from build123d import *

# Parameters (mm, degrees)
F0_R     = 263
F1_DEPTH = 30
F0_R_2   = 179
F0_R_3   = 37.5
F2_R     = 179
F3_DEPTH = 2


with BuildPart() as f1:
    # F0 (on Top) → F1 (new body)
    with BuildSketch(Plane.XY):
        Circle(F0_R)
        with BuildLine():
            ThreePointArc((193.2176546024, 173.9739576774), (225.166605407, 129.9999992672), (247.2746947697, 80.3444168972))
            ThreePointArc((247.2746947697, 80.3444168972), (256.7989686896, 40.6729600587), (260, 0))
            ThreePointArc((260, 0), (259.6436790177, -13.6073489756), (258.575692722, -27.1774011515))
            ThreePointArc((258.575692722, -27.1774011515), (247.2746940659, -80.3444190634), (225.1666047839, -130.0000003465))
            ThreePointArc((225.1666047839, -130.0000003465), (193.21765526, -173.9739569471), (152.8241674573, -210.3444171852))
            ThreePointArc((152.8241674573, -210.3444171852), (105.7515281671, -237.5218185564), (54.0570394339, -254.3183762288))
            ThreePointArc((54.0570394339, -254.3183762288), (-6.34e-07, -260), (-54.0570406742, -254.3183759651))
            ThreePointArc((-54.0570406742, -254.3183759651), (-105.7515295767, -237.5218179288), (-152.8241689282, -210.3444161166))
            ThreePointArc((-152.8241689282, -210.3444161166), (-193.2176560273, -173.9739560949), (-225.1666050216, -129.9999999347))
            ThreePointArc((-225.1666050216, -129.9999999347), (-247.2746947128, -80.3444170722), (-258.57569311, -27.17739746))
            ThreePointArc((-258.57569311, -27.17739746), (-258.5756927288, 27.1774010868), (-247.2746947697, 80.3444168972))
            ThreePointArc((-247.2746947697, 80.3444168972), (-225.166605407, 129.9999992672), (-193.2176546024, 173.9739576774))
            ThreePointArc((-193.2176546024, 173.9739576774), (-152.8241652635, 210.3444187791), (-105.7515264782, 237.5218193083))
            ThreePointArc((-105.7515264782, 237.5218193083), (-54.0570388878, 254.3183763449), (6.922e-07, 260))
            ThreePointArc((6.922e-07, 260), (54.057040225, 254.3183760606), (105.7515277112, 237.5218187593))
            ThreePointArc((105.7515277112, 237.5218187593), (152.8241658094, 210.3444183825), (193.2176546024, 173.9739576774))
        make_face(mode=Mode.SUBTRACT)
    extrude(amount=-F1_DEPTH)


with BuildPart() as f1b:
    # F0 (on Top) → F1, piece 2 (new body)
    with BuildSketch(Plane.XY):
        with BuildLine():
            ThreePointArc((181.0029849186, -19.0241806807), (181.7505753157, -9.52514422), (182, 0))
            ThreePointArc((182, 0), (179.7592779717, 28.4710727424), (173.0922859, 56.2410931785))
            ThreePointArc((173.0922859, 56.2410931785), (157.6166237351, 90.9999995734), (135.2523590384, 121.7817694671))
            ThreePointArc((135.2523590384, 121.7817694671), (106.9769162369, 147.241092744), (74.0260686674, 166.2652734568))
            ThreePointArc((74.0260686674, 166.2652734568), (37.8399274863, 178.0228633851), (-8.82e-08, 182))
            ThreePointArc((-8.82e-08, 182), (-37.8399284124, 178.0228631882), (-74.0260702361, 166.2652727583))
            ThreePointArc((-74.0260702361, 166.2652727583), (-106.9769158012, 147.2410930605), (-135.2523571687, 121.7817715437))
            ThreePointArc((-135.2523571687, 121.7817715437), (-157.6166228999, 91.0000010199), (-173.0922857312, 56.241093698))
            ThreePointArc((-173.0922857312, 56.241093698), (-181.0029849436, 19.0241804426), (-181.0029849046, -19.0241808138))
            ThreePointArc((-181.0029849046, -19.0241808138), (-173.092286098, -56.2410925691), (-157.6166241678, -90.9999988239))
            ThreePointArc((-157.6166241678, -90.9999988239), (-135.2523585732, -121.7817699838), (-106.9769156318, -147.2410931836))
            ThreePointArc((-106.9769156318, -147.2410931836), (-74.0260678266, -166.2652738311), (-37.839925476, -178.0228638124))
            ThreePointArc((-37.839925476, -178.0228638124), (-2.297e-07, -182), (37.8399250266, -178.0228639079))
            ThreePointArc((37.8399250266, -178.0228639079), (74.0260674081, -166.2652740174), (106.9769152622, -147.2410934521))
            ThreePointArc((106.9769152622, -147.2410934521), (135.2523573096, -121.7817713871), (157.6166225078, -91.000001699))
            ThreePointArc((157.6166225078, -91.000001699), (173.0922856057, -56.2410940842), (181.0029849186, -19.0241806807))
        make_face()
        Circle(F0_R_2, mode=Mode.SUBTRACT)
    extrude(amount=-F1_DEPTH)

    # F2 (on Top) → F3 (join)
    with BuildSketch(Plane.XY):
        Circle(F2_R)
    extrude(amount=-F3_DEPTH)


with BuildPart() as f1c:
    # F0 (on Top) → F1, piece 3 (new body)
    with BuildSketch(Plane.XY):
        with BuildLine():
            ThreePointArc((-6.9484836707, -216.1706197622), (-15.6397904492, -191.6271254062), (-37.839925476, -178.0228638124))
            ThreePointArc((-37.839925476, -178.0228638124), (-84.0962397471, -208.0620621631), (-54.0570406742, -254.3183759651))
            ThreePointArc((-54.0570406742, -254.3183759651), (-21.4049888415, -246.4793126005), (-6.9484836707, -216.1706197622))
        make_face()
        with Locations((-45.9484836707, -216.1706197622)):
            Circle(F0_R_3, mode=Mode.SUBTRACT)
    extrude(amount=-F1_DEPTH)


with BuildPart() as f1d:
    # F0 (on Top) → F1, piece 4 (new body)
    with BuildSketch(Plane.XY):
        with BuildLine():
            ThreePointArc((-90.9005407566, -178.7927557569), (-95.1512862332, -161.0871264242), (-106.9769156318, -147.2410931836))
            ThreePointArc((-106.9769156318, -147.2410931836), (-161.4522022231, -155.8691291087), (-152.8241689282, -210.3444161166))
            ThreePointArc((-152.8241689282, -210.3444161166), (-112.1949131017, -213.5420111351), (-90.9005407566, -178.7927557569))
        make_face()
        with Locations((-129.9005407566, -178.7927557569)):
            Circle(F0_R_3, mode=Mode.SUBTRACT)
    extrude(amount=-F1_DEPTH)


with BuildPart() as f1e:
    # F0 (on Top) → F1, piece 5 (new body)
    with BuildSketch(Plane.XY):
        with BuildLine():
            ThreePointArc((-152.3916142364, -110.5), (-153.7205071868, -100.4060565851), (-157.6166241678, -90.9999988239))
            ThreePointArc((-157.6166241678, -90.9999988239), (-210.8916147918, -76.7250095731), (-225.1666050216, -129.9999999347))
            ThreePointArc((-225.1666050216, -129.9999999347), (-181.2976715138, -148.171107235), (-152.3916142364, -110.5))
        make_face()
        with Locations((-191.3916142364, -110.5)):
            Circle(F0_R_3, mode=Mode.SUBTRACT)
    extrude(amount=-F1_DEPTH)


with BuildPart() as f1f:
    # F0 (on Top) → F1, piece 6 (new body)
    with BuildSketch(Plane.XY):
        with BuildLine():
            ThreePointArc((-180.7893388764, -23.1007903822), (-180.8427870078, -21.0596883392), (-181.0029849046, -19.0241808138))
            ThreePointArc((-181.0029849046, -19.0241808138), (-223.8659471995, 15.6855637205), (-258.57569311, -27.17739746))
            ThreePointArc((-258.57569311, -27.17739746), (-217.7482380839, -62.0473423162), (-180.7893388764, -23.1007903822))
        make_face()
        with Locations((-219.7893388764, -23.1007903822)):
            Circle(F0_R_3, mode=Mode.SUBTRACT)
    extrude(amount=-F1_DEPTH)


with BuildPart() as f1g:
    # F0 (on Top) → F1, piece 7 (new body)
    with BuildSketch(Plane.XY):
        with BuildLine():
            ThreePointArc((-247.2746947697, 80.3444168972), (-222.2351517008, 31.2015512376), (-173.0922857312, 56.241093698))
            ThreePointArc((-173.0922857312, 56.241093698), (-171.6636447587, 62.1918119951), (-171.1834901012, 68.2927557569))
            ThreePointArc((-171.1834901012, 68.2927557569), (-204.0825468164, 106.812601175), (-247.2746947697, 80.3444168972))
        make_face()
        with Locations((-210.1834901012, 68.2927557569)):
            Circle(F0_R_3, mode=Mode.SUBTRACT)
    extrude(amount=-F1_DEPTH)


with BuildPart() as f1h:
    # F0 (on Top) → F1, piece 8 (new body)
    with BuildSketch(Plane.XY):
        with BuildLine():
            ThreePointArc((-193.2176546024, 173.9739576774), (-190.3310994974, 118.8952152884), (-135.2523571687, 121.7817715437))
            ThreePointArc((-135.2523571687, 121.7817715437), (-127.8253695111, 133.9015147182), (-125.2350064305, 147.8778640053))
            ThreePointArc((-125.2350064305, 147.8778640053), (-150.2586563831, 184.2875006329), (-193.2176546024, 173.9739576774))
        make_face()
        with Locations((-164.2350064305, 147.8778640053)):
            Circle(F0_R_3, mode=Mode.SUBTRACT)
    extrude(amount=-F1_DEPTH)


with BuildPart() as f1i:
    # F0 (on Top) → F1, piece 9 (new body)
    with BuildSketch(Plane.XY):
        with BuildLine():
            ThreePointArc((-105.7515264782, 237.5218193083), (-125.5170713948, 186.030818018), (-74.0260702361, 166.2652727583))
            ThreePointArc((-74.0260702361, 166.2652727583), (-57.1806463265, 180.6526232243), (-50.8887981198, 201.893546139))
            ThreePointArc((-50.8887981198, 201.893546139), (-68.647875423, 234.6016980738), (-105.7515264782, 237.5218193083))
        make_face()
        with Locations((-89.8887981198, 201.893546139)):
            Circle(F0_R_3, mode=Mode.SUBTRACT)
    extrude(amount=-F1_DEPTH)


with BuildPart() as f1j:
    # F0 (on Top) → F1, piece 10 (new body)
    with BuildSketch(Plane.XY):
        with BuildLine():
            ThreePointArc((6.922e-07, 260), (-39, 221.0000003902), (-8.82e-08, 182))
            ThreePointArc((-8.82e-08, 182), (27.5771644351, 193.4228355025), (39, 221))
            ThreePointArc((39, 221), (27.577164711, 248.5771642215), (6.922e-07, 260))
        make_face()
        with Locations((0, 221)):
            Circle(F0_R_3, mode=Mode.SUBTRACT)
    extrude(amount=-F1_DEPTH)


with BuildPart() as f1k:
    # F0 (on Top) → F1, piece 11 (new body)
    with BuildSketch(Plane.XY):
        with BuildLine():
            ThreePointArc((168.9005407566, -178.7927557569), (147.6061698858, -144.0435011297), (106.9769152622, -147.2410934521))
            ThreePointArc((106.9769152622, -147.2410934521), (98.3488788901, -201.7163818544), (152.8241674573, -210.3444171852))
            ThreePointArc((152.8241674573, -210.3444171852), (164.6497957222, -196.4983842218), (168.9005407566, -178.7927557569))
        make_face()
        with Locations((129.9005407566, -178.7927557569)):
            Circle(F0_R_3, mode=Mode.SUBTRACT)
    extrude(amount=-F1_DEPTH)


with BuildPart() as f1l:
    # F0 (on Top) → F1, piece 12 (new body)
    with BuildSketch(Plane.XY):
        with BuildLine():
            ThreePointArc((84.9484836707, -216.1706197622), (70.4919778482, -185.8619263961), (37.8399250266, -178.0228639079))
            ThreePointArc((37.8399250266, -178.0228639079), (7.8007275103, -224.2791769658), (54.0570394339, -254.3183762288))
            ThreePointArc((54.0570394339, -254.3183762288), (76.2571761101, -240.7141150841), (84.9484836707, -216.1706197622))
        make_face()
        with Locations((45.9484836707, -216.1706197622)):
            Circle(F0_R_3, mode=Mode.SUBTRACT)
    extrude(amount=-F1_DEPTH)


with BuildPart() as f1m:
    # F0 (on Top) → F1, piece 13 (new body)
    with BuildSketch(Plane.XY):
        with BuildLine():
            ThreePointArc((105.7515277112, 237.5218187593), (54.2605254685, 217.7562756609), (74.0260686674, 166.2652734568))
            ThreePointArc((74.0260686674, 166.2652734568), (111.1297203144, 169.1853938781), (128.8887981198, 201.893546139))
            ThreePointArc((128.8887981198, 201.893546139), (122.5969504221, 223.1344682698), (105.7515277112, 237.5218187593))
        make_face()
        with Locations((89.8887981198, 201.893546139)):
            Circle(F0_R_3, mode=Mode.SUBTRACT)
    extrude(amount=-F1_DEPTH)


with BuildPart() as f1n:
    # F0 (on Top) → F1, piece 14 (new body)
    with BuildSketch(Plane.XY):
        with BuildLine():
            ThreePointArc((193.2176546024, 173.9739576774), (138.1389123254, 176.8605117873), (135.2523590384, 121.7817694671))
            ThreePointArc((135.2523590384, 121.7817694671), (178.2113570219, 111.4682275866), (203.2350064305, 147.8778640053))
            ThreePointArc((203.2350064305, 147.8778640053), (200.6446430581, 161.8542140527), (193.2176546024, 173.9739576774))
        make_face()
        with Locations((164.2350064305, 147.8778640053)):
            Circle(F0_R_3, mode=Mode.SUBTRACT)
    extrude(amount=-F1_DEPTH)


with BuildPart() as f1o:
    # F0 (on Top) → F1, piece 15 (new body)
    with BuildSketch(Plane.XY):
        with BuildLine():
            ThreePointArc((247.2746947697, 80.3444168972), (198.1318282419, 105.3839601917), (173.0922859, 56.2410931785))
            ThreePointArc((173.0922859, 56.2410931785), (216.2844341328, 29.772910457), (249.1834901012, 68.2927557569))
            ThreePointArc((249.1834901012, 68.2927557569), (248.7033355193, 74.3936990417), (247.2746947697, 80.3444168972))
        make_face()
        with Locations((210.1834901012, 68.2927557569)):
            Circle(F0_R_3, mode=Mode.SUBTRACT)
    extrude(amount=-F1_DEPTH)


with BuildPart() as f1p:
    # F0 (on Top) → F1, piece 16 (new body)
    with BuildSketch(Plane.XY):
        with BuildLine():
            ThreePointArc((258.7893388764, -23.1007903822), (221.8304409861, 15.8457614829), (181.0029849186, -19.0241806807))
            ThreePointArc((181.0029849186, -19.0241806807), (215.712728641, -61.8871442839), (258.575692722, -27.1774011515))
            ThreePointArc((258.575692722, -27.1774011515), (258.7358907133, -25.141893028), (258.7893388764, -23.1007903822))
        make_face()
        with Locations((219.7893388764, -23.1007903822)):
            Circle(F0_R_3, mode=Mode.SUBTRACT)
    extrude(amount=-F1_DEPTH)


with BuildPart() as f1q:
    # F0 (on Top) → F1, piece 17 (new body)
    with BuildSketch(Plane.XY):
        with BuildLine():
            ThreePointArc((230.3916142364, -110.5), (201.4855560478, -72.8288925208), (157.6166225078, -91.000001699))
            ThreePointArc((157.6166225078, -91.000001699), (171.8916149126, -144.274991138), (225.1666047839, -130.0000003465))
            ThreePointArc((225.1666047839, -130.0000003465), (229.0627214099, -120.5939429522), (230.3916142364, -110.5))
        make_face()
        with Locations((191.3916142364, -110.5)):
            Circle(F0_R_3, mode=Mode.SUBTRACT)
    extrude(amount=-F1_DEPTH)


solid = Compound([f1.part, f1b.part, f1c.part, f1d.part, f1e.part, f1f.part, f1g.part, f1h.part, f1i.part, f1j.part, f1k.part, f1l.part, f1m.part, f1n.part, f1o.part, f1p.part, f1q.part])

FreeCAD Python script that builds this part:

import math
import FreeCAD as App
import Part
import Sketcher
Q = App.Units.Quantity

doc = App.newDocument("Part")
body = doc.addObject("PartDesign::Body", "Body")

# Sketch on XY plane
sketch1 = body.newObject("Sketcher::SketchObject", "Sketch")
sketch1.AttachmentSupport = (doc.getObject("XY_Plane"), [""])
sketch1.MapMode = "FlatFace"
sketch1.addGeometry(Part.Circle(App.Vector(0, 0, 0), App.Vector(0, 0, 1), 263), False)
sketch1.addGeometry(Part.ArcOfCircle(Part.Circle(App.Vector(0, 0, 0), App.Vector(0, 0, 1), 260), math.radians(42), math.radians(66)), False)
sketch1.addGeometry(Part.ArcOfCircle(Part.Circle(App.Vector(0, 0, 0), App.Vector(0, 0, 1), 260), math.radians(18), math.radians(42)), False)
sketch1.addGeometry(Part.ArcOfCircle(Part.Circle(App.Vector(0, 0, 0), App.Vector(0, 0, 1), 260), math.radians(0), math.radians(18)), False)
sketch1.addGeometry(Part.ArcOfCircle(Part.Circle(App.Vector(0, 0, 0), App.Vector(0, 0, 1), 260), math.radians(-6), math.radians(0)), False)
sketch1.addGeometry(Part.ArcOfCircle(Part.Circle(App.Vector(0, 0, 0), App.Vector(0, 0, 1), 260), math.radians(-30), math.radians(-6)), False)
sketch1.addGeometry(Part.ArcOfCircle(Part.Circle(App.Vector(0, 0, 0), App.Vector(0, 0, 1), 260), math.radians(-53.999999), math.radians(-30)), False)
sketch1.addGeometry(Part.ArcOfCircle(Part.Circle(App.Vector(0, 0, 0), App.Vector(0, 0, 1), 260), math.radians(-102), math.radians(-53.999999)), False)
sketch1.addGeometry(Part.ArcOfCircle(Part.Circle(App.Vector(0, 0, 0), App.Vector(0, 0, 1), 260), math.radians(-126.000001), math.radians(-102)), False)
sketch1.addGeometry(Part.ArcOfCircle(Part.Circle(App.Vector(0, 0, 0), App.Vector(0, 0, 1), 260), math.radians(162), math.radians(233.999999)), False)
sketch1.addGeometry(Part.ArcOfCircle(Part.Circle(App.Vector(0, 0, 0), App.Vector(0, 0, 1), 260), math.radians(90), math.radians(162)), False)
sketch1.addGeometry(Part.ArcOfCircle(Part.Circle(App.Vector(0, 0, 0), App.Vector(0, 0, 1), 260), math.radians(66), math.radians(90)), False)
sketch1.addConstraint(Sketcher.Constraint("Tangent", 1, 1, 2, 2))
sketch1.addConstraint(Sketcher.Constraint("Tangent", 2, 1, 3, 2))
sketch1.addConstraint(Sketcher.Constraint("Tangent", 3, 1, 4, 2))
sketch1.addConstraint(Sketcher.Constraint("Tangent", 4, 1, 5, 2))
sketch1.addConstraint(Sketcher.Constraint("Tangent", 5, 1, 6, 2))
sketch1.addConstraint(Sketcher.Constraint("Tangent", 6, 1, 7, 2))
sketch1.addConstraint(Sketcher.Constraint("Tangent", 7, 1, 8, 2))
sketch1.addConstraint(Sketcher.Constraint("Tangent", 8, 1, 9, 2))
sketch1.addConstraint(Sketcher.Constraint("Tangent", 9, 1, 10, 2))
sketch1.addConstraint(Sketcher.Constraint("Tangent", 10, 1, 11, 2))
sketch1.addConstraint(Sketcher.Constraint("Tangent", 11, 1, 1, 2))
sketch1.addConstraint(Sketcher.Constraint("Coincident", 0, 3, -1, 1))
sketch1.addConstraint(Sketcher.Constraint("Coincident", 1, 3, -1, 1))
sketch1.addConstraint(Sketcher.Constraint("Coincident", 3, 3, -1, 1))
sketch1.addConstraint(Sketcher.Constraint("Coincident", 5, 3, -1, 1))
sketch1.addConstraint(Sketcher.Constraint("Coincident", 7, 3, -1, 1))
sketch1.addConstraint(Sketcher.Constraint("Coincident", 9, 3, -1, 1))
sketch1.addConstraint(Sketcher.Constraint("PointOnObject", 3, 1, -1))
sketch1.addConstraint(Sketcher.Constraint("PointOnObject", 10, 1, -2))
sketch1.addConstraint(Sketcher.Constraint("Horizontal", 6, 1, 8, 1))
sketch1.addConstraint(Sketcher.Constraint("Horizontal", 2, 1, 9, 1))
sketch1.addConstraint(Sketcher.Constraint("Diameter", 0, Q("526 mm")))
sketch1.addConstraint(Sketcher.Constraint("Radius", 1, Q("260 mm")))
sketch1.addConstraint(Sketcher.Constraint("DistanceY", 5, 1, -1, 1, Q("130 mm")))
sketch1.addConstraint(Sketcher.Constraint("DistanceY", 4, 1, -1, 1, Q("27.177401 mm")))
sketch1.addConstraint(Sketcher.Constraint("DistanceY", 2, 1, 11, 1, Q("157.177402 mm")))
sketch1.addConstraint(Sketcher.Constraint("DistanceX", 7, 1, -1, 1, Q("54.057041 mm")))
sketch1.addConstraint(Sketcher.Constraint("DistanceX", 8, 1, -1, 1, Q("152.824169 mm")))
sketch1.addConstraint(Sketcher.Constraint("DistanceY", -1, 1, 11, 1, Q("237.521819 mm")))
sketch1.addConstraint(Sketcher.Constraint("DistanceX", 1, 1, 2, 1, Q("54.05704 mm")))
pad1 = body.newObject("PartDesign::Pad", "Pad")
pad1.Profile = sketch1
pad1.Length = 30
pad1.Reversed = True
body2 = doc.addObject("PartDesign::Body", "Body001")

# Sketch on XY plane
sketch2 = body2.newObject("Sketcher::SketchObject", "Sketch001")
sketch2.AttachmentSupport = (doc.getObject("XY_Plane001"), [""])
sketch2.MapMode = "FlatFace"
sketch2.addGeometry(Part.ArcOfCircle(Part.Circle(App.Vector(0, 0, 0), App.Vector(0, 0, 1), 182), math.radians(-6), math.radians(18)), False)
sketch2.addGeometry(Part.ArcOfCircle(Part.Circle(App.Vector(0, 0, 0), App.Vector(0, 0, 1), 182), math.radians(18), math.radians(42)), False)
sketch2.addGeometry(Part.ArcOfCircle(Part.Circle(App.Vector(0, 0, 0), App.Vector(0, 0, 1), 182), math.radians(42), math.radians(66)), False)
sketch2.addGeometry(Part.ArcOfCircle(Part.Circle(App.Vector(0, 0, 0), App.Vector(0, 0, 1), 182), math.radians(66), math.radians(90)), False)
sketch2.addGeometry(Part.ArcOfCircle(Part.Circle(App.Vector(0, 0, 0), App.Vector(0, 0, 1), 182), math.radians(90), math.radians(114)), False)
sketch2.addGeometry(Part.ArcOfCircle(Part.Circle(App.Vector(0, 0, 0), App.Vector(0, 0, 1), 182), math.radians(114), math.radians(137.999999)), False)
sketch2.addGeometry(Part.ArcOfCircle(Part.Circle(App.Vector(0, 0, 0), App.Vector(0, 0, 1), 182), math.radians(137.999999), math.radians(186)), False)
sketch2.addGeometry(Part.ArcOfCircle(Part.Circle(App.Vector(0, 0, 0), App.Vector(0, 0, 1), 182), math.radians(-174), math.radians(-150)), False)
sketch2.addGeometry(Part.ArcOfCircle(Part.Circle(App.Vector(0, 0, 0), App.Vector(0, 0, 1), 182), math.radians(-150), math.radians(-126)), False)
sketch2.addGeometry(Part.ArcOfCircle(Part.Circle(App.Vector(0, 0, 0), App.Vector(0, 0, 1), 182), math.radians(-126), math.radians(-78.000001)), False)
sketch2.addGeometry(Part.ArcOfCircle(Part.Circle(App.Vector(0, 0, 0), App.Vector(0, 0, 1), 182), math.radians(-78.000001), math.radians(-30.000001)), False)
sketch2.addGeometry(Part.ArcOfCircle(Part.Circle(App.Vector(0, 0, 0), App.Vector(0, 0, 1), 182), math.radians(-30.000001), math.radians(-6)), False)
sketch2.addGeometry(Part.Circle(App.Vector(0, 0, 0), App.Vector(0, 0, 1), 179), False)
sketch2.addConstraint(Sketcher.Constraint("Tangent", 0, 2, 1, 1))
sketch2.addConstraint(Sketcher.Constraint("Tangent", 1, 2, 2, 1))
sketch2.addConstraint(Sketcher.Constraint("Tangent", 2, 2, 3, 1))
sketch2.addConstraint(Sketcher.Constraint("Tangent", 3, 2, 4, 1))
sketch2.addConstraint(Sketcher.Constraint("Tangent", 4, 2, 5, 1))
sketch2.addConstraint(Sketcher.Constraint("Tangent", 5, 2, 6, 1))
sketch2.addConstraint(Sketcher.Constraint("Tangent", 6, 2, 7, 1))
sketch2.addConstraint(Sketcher.Constraint("Tangent", 7, 2, 8, 1))
sketch2.addConstraint(Sketcher.Constraint("Tangent", 8, 2, 9, 1))
sketch2.addConstraint(Sketcher.Constraint("Tangent", 9, 2, 10, 1))
sketch2.addConstraint(Sketcher.Constraint("Tangent", 10, 2, 11, 1))
sketch2.addConstraint(Sketcher.Constraint("Tangent", 11, 2, 0, 1))
sketch2.addConstraint(Sketcher.Constraint("Coincident", 0, 3, -1, 1))
sketch2.addConstraint(Sketcher.Constraint("Coincident", 2, 3, -1, 1))
sketch2.addConstraint(Sketcher.Constraint("Coincident", 4, 3, -1, 1))
sketch2.addConstraint(Sketcher.Constraint("Coincident", 6, 3, -1, 1))
sketch2.addConstraint(Sketcher.Constraint("Coincident", 8, 3, -1, 1))
sketch2.addConstraint(Sketcher.Constraint("Coincident", 12, 3, -1, 1))
sketch2.addConstraint(Sketcher.Constraint("Equal", 8, 9))
sketch2.addConstraint(Sketcher.Constraint("PointOnObject", 3, 2, -2))
sketch2.addConstraint(Sketcher.Constraint("Horizontal", 2, 2, 4, 2))
sketch2.addConstraint(Sketcher.Constraint("Horizontal", 6, 2, 11, 2))
sketch2.addConstraint(Sketcher.Constraint("Diameter", 12, Q("358 mm")))
sketch2.addConstraint(Sketcher.Constraint("Radius", 0, Q("182 mm")))
sketch2.addConstraint(Sketcher.Constraint("DistanceY", 7, 2, -1, 1, Q("90.999999 mm")))
sketch2.addConstraint(Sketcher.Constraint("DistanceY", 10, 2, -1, 1, Q("91.000002 mm")))
sketch2.addConstraint(Sketcher.Constraint("DistanceY", 5, 2, 4, 2, Q("44.483501 mm")))
sketch2.addConstraint(Sketcher.Constraint("DistanceX", 0, 2, 11, 2, Q("7.910699 mm")))
sketch2.addConstraint(Sketcher.Constraint("DistanceX", -1, 1, 1, 2, Q("135.252359 mm")))
sketch2.addConstraint(Sketcher.Constraint("DistanceX", -1, 1, 2, 2, Q("74.026069 mm")))
sketch2.addConstraint(Sketcher.Constraint("DistanceY", 6, 2, -1, 1, Q("19.024181 mm")))
sketch2.addConstraint(Sketcher.Constraint("DistanceX", 7, 2, 8, 2, Q("50.639709 mm")))
sketch2.addConstraint(Sketcher.Constraint("DistanceX", 8, 2, 9, 2, Q("144.816841 mm")))
pad2 = body2.newObject("PartDesign::Pad", "Pad001")
pad2.Profile = sketch2
pad2.Length = 30
pad2.Reversed = True

# Sketch on XY plane
sketch3 = body2.newObject("Sketcher::SketchObject", "Sketch002")
sketch3.AttachmentSupport = (doc.getObject("XY_Plane001"), [""])
sketch3.MapMode = "FlatFace"
sketch3.addGeometry(Part.Circle(App.Vector(0, 0, 0), App.Vector(0, 0, 1), 179), False)
sketch3.addConstraint(Sketcher.Constraint("Coincident", 0, 3, -1, 1))
sketch3.addConstraint(Sketcher.Constraint("Diameter", 0, Q("358 mm")))
pad3 = body2.newObject("PartDesign::Pad", "Pad002")
pad3.Profile = sketch3
pad3.Length = 2
pad3.Reversed = True
body3 = doc.addObject("PartDesign::Body", "Body002")

# Sketch on XY plane
sketch4 = body3.newObject("Sketcher::SketchObject", "Sketch003")
sketch4.AttachmentSupport = (doc.getObject("XY_Plane002"), [""])
sketch4.MapMode = "FlatFace"
sketch4.addGeometry(Part.ArcOfCircle(Part.Circle(App.Vector(-45.948484, -216.17062, 0), App.Vector(0, 0, 1), 39), math.radians(0), math.radians(77.999997)), False)
sketch4.addGeometry(Part.ArcOfCircle(Part.Circle(App.Vector(-45.948484, -216.17062, 0), App.Vector(0, 0, 1), 39), math.radians(77.999997), math.radians(257.999998)), False)
sketch4.addGeometry(Part.ArcOfCircle(Part.Circle(App.Vector(-45.948484, -216.17062, 0), App.Vector(0, 0, 1), 39), math.radians(-102.000002), math.radians(0)), False)
sketch4.addGeometry(Part.Circle(App.Vector(-45.948484, -216.17062, 0), App.Vector(0, 0, 1), 37.5), False)
sketch4.addConstraint(Sketcher.Constraint("Tangent", 0, 2, 1, 1))
sketch4.addConstraint(Sketcher.Constraint("Tangent", 1, 2, 2, 1))
sketch4.addConstraint(Sketcher.Constraint("Tangent", 2, 2, 0, 1))
sketch4.addConstraint(Sketcher.Constraint("Coincident", 3, 3, 0, 3))
sketch4.addConstraint(Sketcher.Constraint("Horizontal", 3, 3, 2, 2))
sketch4.addConstraint(Sketcher.Constraint("Diameter", 3, Q("75 mm")))
sketch4.addConstraint(Sketcher.Constraint("Radius", 0, Q("39 mm")))
sketch4.addConstraint(Sketcher.Constraint("DistanceY", 0, 3, -1, 1, Q("216.17062 mm")))
sketch4.addConstraint(Sketcher.Constraint("DistanceX", 1, 2, -1, 1, Q("54.057041 mm")))
sketch4.addConstraint(Sketcher.Constraint("DistanceX", 0, 3, 0, 2, Q("8.108558 mm")))
sketch4.addConstraint(Sketcher.Constraint("DistanceX", 0, 3, -1, 1, Q("45.948484 mm")))
pad4 = body3.newObject("PartDesign::Pad", "Pad003")
pad4.Profile = sketch4
pad4.Length = 30
pad4.Reversed = True
body4 = doc.addObject("PartDesign::Body", "Body003")

# Sketch on XY plane
sketch5 = body4.newObject("Sketcher::SketchObject", "Sketch004")
sketch5.AttachmentSupport = (doc.getObject("XY_Plane003"), [""])
sketch5.MapMode = "FlatFace"
sketch5.addGeometry(Part.ArcOfCircle(Part.Circle(App.Vector(-129.900541, -178.792756, 0), App.Vector(0, 0, 1), 39), math.radians(0), math.radians(53.999999)), False)
sketch5.addGeometry(Part.ArcOfCircle(Part.Circle(App.Vector(-129.900541, -178.792756, 0), App.Vector(0, 0, 1), 39), math.radians(53.999999), math.radians(233.999994)), False)
sketch5.addGeometry(Part.ArcOfCircle(Part.Circle(App.Vector(-129.900541, -178.792756, 0), App.Vector(0, 0, 1), 39), math.radians(-126.000006), math.radians(0)), False)
sketch5.addGeometry(Part.Circle(App.Vector(-129.900541, -178.792756, 0), App.Vector(0, 0, 1), 37.5), False)
sketch5.addConstraint(Sketcher.Constraint("Tangent", 0, 2, 1, 1))
sketch5.addConstraint(Sketcher.Constraint("Tangent", 1, 2, 2, 1))
sketch5.addConstraint(Sketcher.Constraint("Tangent", 2, 2, 0, 1))
sketch5.addConstraint(Sketcher.Constraint("Coincident", 3, 3, 0, 3))
sketch5.addConstraint(Sketcher.Constraint("Horizontal", 3, 3, 2, 2))
sketch5.addConstraint(Sketcher.Constraint("Diameter", 3, Q("75 mm")))
sketch5.addConstraint(Sketcher.Constraint("Radius", 0, Q("39 mm")))
sketch5.addConstraint(Sketcher.Constraint("DistanceX", 0, 3, -1, 1, Q("129.900541 mm")))
sketch5.addConstraint(Sketcher.Constraint("DistanceX", 1, 2, -1, 1, Q("152.824169 mm")))
sketch5.addConstraint(Sketcher.Constraint("DistanceY", 0, 3, -1, 1, Q("178.792756 mm")))
sketch5.addConstraint(Sketcher.Constraint("DistanceX", 0, 2, -1, 1, Q("106.976916 mm")))
pad5 = body4.newObject("PartDesign::Pad", "Pad004")
pad5.Profile = sketch5
pad5.Length = 30
pad5.Reversed = True
body5 = doc.addObject("PartDesign::Body", "Body004")

# Sketch on XY plane
sketch6 = body5.newObject("Sketcher::SketchObject", "Sketch005")
sketch6.AttachmentSupport = (doc.getObject("XY_Plane004"), [""])
sketch6.MapMode = "FlatFace"
sketch6.addGeometry(Part.ArcOfCircle(Part.Circle(App.Vector(-191.391614, -110.5, 0), App.Vector(0, 0, 1), 39), math.radians(0), math.radians(30.000002)), False)
sketch6.addGeometry(Part.ArcOfCircle(Part.Circle(App.Vector(-191.391614, -110.5, 0), App.Vector(0, 0, 1), 39), math.radians(30.000002), math.radians(360)), False)
sketch6.addGeometry(Part.Circle(App.Vector(-191.391614, -110.5, 0), App.Vector(0, 0, 1), 37.5), False)
sketch6.addConstraint(Sketcher.Constraint("Tangent", 0, 1, 1, 2))
sketch6.addConstraint(Sketcher.Constraint("Coincident", 1, 1, 0, 2))
sketch6.addConstraint(Sketcher.Constraint("Coincident", 2, 3, 0, 3))
sketch6.addConstraint(Sketcher.Constraint("Horizontal", 2, 3, 0, 1))
sketch6.addConstraint(Sketcher.Constraint("Diameter", 2, Q("75 mm")))
sketch6.addConstraint(Sketcher.Constraint("Radius", 0, Q("39 mm")))
sketch6.addConstraint(Sketcher.Constraint("DistanceY", 1, 1, -1, 1, Q("90.999999 mm")))
sketch6.addConstraint(Sketcher.Constraint("DistanceY", 0, 3, -1, 1, Q("110.5 mm")))
sketch6.addConstraint(Sketcher.Constraint("DistanceX", 0, 3, -1, 1, Q("191.391614 mm")))
pad6 = body5.newObject("PartDesign::Pad", "Pad005")
pad6.Profile = sketch6
pad6.Length = 30
pad6.Reversed = True
body6 = doc.addObject("PartDesign::Body", "Body005")

# Sketch on XY plane
sketch7 = body6.newObject("Sketcher::SketchObject", "Sketch006")
sketch7.AttachmentSupport = (doc.getObject("XY_Plane005"), [""])
sketch7.MapMode = "FlatFace"
sketch7.addGeometry(Part.ArcOfCircle(Part.Circle(App.Vector(-219.789339, -23.10079, 0), App.Vector(0, 0, 1), 39), math.radians(0), math.radians(5.999999)), False)
sketch7.addGeometry(Part.ArcOfCircle(Part.Circle(App.Vector(-219.789339, -23.10079, 0), App.Vector(0, 0, 1), 39), math.radians(5.999999), math.radians(185.999996)), False)
sketch7.addGeometry(Part.ArcOfCircle(Part.Circle(App.Vector(-219.789339, -23.10079, 0), App.Vector(0, 0, 1), 39), math.radians(-174.000004), math.radians(0)), False)
sketch7.addGeometry(Part.Circle(App.Vector(-219.789339, -23.10079, 0), App.Vector(0, 0, 1), 37.5), False)
sketch7.addConstraint(Sketcher.Constraint("Tangent", 0, 2, 1, 1))
sketch7.addConstraint(Sketcher.Constraint("Tangent", 1, 2, 2, 1))
sketch7.addConstraint(Sketcher.Constraint("Coincident", 2, 2, 0, 1))
sketch7.addConstraint(Sketcher.Constraint("Coincident", 3, 3, 0, 3))
sketch7.addConstraint(Sketcher.Constraint("Equal", 0, 1))
sketch7.addConstraint(Sketcher.Constraint("Horizontal", 3, 3, 2, 2))
sketch7.addConstraint(Sketcher.Constraint("Diameter", 3, Q("75 mm")))
sketch7.addConstraint(Sketcher.Constraint("Radius", 0, Q("39 mm")))
sketch7.addConstraint(Sketcher.Constraint("DistanceX", 0, 3, -1, 1, Q("219.789339 mm")))
sketch7.addConstraint(Sketcher.Constraint("DistanceY", 0, 3, -1, 1, Q("23.10079 mm")))
sketch7.addConstraint(Sketcher.Constraint("DistanceY", 0, 2, -1, 1, Q("19.024181 mm")))
sketch7.addConstraint(Sketcher.Constraint("DistanceX", 1, 2, 0, 2, Q("77.572708 mm")))
pad7 = body6.newObject("PartDesign::Pad", "Pad006")
pad7.Profile = sketch7
pad7.Length = 30
pad7.Reversed = True
body7 = doc.addObject("PartDesign::Body", "Body006")

# Sketch on XY plane
sketch8 = body7.newObject("Sketcher::SketchObject", "Sketch007")
sketch8.AttachmentSupport = (doc.getObject("XY_Plane006"), [""])
sketch8.MapMode = "FlatFace"
sketch8.addGeometry(Part.ArcOfCircle(Part.Circle(App.Vector(-210.18349, 68.292756, 0), App.Vector(0, 0, 1), 39), math.radians(-17.999999), math.radians(0)), False)
sketch8.addGeometry(Part.ArcOfCircle(Part.Circle(App.Vector(-210.18349, 68.292756, 0), App.Vector(0, 0, 1), 39), math.radians(0), math.radians(342.000001)), False)
sketch8.addGeometry(Part.Circle(App.Vector(-210.18349, 68.292756, 0), App.Vector(0, 0, 1), 37.5), False)
sketch8.addConstraint(Sketcher.Constraint("Tangent", 0, 1, 1, 2))
sketch8.addConstraint(Sketcher.Constraint("Coincident", 1, 1, 0, 2))
sketch8.addConstraint(Sketcher.Constraint("Coincident", 2, 3, 0, 3))
sketch8.addConstraint(Sketcher.Constraint("Horizontal", 2, 3, 1, 1))
sketch8.addConstraint(Sketcher.Constraint("Diameter", 2, Q("75 mm")))
sketch8.addConstraint(Sketcher.Constraint("Radius", 0, Q("39 mm")))
sketch8.addConstraint(Sketcher.Constraint("DistanceX", 0, 3, -1, 1, Q("210.18349 mm")))
sketch8.addConstraint(Sketcher.Constraint("DistanceY", -1, 1, 0, 3, Q("68.292756 mm")))
sketch8.addConstraint(Sketcher.Constraint("DistanceX", 0, 1, -1, 1, Q("173.092286 mm")))
pad8 = body7.newObject("PartDesign::Pad", "Pad007")
pad8.Profile = sketch8
pad8.Length = 30
pad8.Reversed = True
body8 = doc.addObject("PartDesign::Body", "Body007")

# Sketch on XY plane
sketch9 = body8.newObject("Sketcher::SketchObject", "Sketch008")
sketch9.AttachmentSupport = (doc.getObject("XY_Plane007"), [""])
sketch9.MapMode = "FlatFace"
sketch9.addGeometry(Part.ArcOfCircle(Part.Circle(App.Vector(-164.235006, 147.877864, 0), App.Vector(0, 0, 1), 39), math.radians(138), math.radians(318.000002)), False)
sketch9.addGeometry(Part.ArcOfCircle(Part.Circle(App.Vector(-164.235006, 147.877864, 0), App.Vector(0, 0, 1), 39), math.radians(-41.999998), math.radians(0)), False)
sketch9.addGeometry(Part.ArcOfCircle(Part.Circle(App.Vector(-164.235006, 147.877864, 0), App.Vector(0, 0, 1), 39), math.radians(0), math.radians(138)), False)
sketch9.addGeometry(Part.Circle(App.Vector(-164.235006, 147.877864, 0), App.Vector(0, 0, 1), 37.5), False)
sketch9.addConstraint(Sketcher.Constraint("Tangent", 0, 2, 1, 1))
sketch9.addConstraint(Sketcher.Constraint("Tangent", 1, 2, 2, 1))
sketch9.addConstraint(Sketcher.Constraint("Tangent", 2, 2, 0, 1))
sketch9.addConstraint(Sketcher.Constraint("Coincident", 3, 3, 0, 3))
sketch9.addConstraint(Sketcher.Constraint("Horizontal", 3, 3, 1, 2))
sketch9.addConstraint(Sketcher.Constraint("Diameter", 3, Q("75 mm")))
sketch9.addConstraint(Sketcher.Constraint("Radius", 0, Q("39 mm")))
sketch9.addConstraint(Sketcher.Constraint("DistanceY", -1, 1, 0, 2, Q("121.781772 mm")))
sketch9.addConstraint(Sketcher.Constraint("DistanceX", 2, 3, 0, 2, Q("28.982649 mm")))
sketch9.addConstraint(Sketcher.Constraint("DistanceX", 2, 2, 0, 3, Q("28.982648 mm")))
sketch9.addConstraint(Sketcher.Constraint("DistanceX", 0, 3, -1, 1, Q("164.235006 mm")))
pad9 = body8.newObject("PartDesign::Pad", "Pad008")
pad9.Profile = sketch9
pad9.Length = 30
pad9.Reversed = True
body9 = doc.addObject("PartDesign::Body", "Body008")

# Sketch on XY plane
sketch10 = body9.newObject("Sketcher::SketchObject", "Sketch009")
sketch10.AttachmentSupport = (doc.getObject("XY_Plane008"), [""])
sketch10.MapMode = "FlatFace"
sketch10.addGeometry(Part.Circle(App.Vector(-89.888798, 201.893546, 0), App.Vector(0, 0, 1), 39), False)
sketch10.addGeometry(Part.Circle(App.Vector(-89.888798, 201.893546, 0), App.Vector(0, 0, 1), 37.5), False)
sketch10.addConstraint(Sketcher.Constraint("Coincident", 1, 3, 0, 3))
sketch10.addConstraint(Sketcher.Constraint("Diameter", 0, Q("78 mm")))
sketch10.addConstraint(Sketcher.Constraint("Diameter", 1, Q("75 mm")))
sketch10.addConstraint(Sketcher.Constraint("DistanceX", 0, 3, -1, 1, Q("89.888798 mm")))
sketch10.addConstraint(Sketcher.Constraint("DistanceY", -1, 1, 0, 3, Q("201.893546 mm")))
pad10 = body9.newObject("PartDesign::Pad", "Pad009")
pad10.Profile = sketch10
pad10.Length = 30
pad10.Reversed = True
body10 = doc.addObject("PartDesign::Body", "Body009")

# Sketch on XY plane
sketch11 = body10.newObject("Sketcher::SketchObject", "Sketch010")
sketch11.AttachmentSupport = (doc.getObject("XY_Plane009"), [""])
sketch11.MapMode = "FlatFace"
sketch11.addGeometry(Part.ArcOfCircle(Part.Circle(App.Vector(0, 221, 0), App.Vector(0, 0, 1), 39), math.radians(89.999999), math.radians(270)), False)
sketch11.addGeometry(Part.ArcOfCircle(Part.Circle(App.Vector(0, 221, 0), App.Vector(0, 0, 1), 39), math.radians(-90), math.radians(89.999999)), False)
sketch11.addGeometry(Part.Circle(App.Vector(0, 221, 0), App.Vector(0, 0, 1), 37.5), False)
sketch11.addConstraint(Sketcher.Constraint("Tangent", 0, 1, 1, 2))
sketch11.addConstraint(Sketcher.Constraint("Coincident", 1, 1, 0, 2))
sketch11.addConstraint(Sketcher.Constraint("Coincident", 2, 3, 0, 3))
sketch11.addConstraint(Sketcher.Constraint("PointOnObject", 0, 3, -2))
sketch11.addConstraint(Sketcher.Constraint("PointOnObject", 0, 1, -2))
sketch11.addConstraint(Sketcher.Constraint("PointOnObject", 1, 1, -2))
sketch11.addConstraint(Sketcher.Constraint("Diameter", 2, Q("75 mm")))
sketch11.addConstraint(Sketcher.Constraint("Radius", 0, Q("39 mm")))
sketch11.addConstraint(Sketcher.Constraint("DistanceY", -1, 1, 0, 3, Q("221 mm")))
pad11 = body10.newObject("PartDesign::Pad", "Pad010")
pad11.Profile = sketch11
pad11.Length = 30
pad11.Reversed = True
body11 = doc.addObject("PartDesign::Body", "Body010")

# Sketch on XY plane
sketch12 = body11.newObject("Sketcher::SketchObject", "Sketch011")
sketch12.AttachmentSupport = (doc.getObject("XY_Plane010"), [""])
sketch12.MapMode = "FlatFace"
sketch12.addGeometry(Part.Circle(App.Vector(129.900541, -178.792756, 0), App.Vector(0, 0, 1), 39), False)
sketch12.addGeometry(Part.Circle(App.Vector(129.900541, -178.792756, 0), App.Vector(0, 0, 1), 37.5), False)
sketch12.addConstraint(Sketcher.Constraint("Coincident", 1, 3, 0, 3))
sketch12.addConstraint(Sketcher.Constraint("Diameter", 0, Q("78 mm")))
sketch12.addConstraint(Sketcher.Constraint("Diameter", 1, Q("75 mm")))
sketch12.addConstraint(Sketcher.Constraint("DistanceX", -1, 1, 0, 3, Q("129.900541 mm")))
sketch12.addConstraint(Sketcher.Constraint("DistanceY", 0, 3, -1, 1, Q("178.792756 mm")))
pad12 = body11.newObject("PartDesign::Pad", "Pad011")
pad12.Profile = sketch12
pad12.Length = 30
pad12.Reversed = True
body12 = doc.addObject("PartDesign::Body", "Body011")

# Sketch on XY plane
sketch13 = body12.newObject("Sketcher::SketchObject", "Sketch012")
sketch13.AttachmentSupport = (doc.getObject("XY_Plane011"), [""])
sketch13.MapMode = "FlatFace"
sketch13.addGeometry(Part.Circle(App.Vector(45.948484, -216.17062, 0), App.Vector(0, 0, 1), 39), False)
sketch13.addGeometry(Part.Circle(App.Vector(45.948484, -216.17062, 0), App.Vector(0, 0, 1), 37.5), False)
sketch13.addConstraint(Sketcher.Constraint("Coincident", 1, 3, 0, 3))
sketch13.addConstraint(Sketcher.Constraint("Diameter", 0, Q("78 mm")))
sketch13.addConstraint(Sketcher.Constraint("Diameter", 1, Q("75 mm")))
sketch13.addConstraint(Sketcher.Constraint("DistanceY", 0, 3, -1, 1, Q("216.17062 mm")))
sketch13.addConstraint(Sketcher.Constraint("DistanceX", -1, 1, 0, 3, Q("45.948484 mm")))
pad13 = body12.newObject("PartDesign::Pad", "Pad012")
pad13.Profile = sketch13
pad13.Length = 30
pad13.Reversed = True
body13 = doc.addObject("PartDesign::Body", "Body012")

# Sketch on XY plane
sketch14 = body13.newObject("Sketcher::SketchObject", "Sketch013")
sketch14.AttachmentSupport = (doc.getObject("XY_Plane012"), [""])
sketch14.MapMode = "FlatFace"
sketch14.addGeometry(Part.ArcOfCircle(Part.Circle(App.Vector(89.888798, 201.893546, 0), App.Vector(0, 0, 1), 39), math.radians(65.999999), math.radians(245.999999)), False)
sketch14.addGeometry(Part.ArcOfCircle(Part.Circle(App.Vector(89.888798, 201.893546, 0), App.Vector(0, 0, 1), 39), math.radians(-114.000001), math.radians(0)), False)
sketch14.addGeometry(Part.ArcOfCircle(Part.Circle(App.Vector(89.888798, 201.893546, 0), App.Vector(0, 0, 1), 39), math.radians(0), math.radians(65.999999)), False)
sketch14.addGeometry(Part.Circle(App.Vector(89.888798, 201.893546, 0), App.Vector(0, 0, 1), 37.5), False)
sketch14.addConstraint(Sketcher.Constraint("Tangent", 0, 2, 1, 1))
sketch14.addConstraint(Sketcher.Constraint("Tangent", 1, 2, 2, 1))
sketch14.addConstraint(Sketcher.Constraint("Tangent", 2, 2, 0, 1))
sketch14.addConstraint(Sketcher.Constraint("Coincident", 3, 3, 0, 3))
sketch14.addConstraint(Sketcher.Constraint("Horizontal", 3, 3, 1, 2))
sketch14.addConstraint(Sketcher.Constraint("Diameter", 3, Q("75 mm")))
sketch14.addConstraint(Sketcher.Constraint("Radius", 0, Q("39 mm")))
sketch14.addConstraint(Sketcher.Constraint("DistanceX", -1, 1, 0, 3, Q("89.888798 mm")))
sketch14.addConstraint(Sketcher.Constraint("DistanceX", -1, 1, 0, 2, Q("74.026069 mm")))
sketch14.addConstraint(Sketcher.Constraint("DistanceY", -1, 1, 2, 2, Q("237.521819 mm")))
sketch14.addConstraint(Sketcher.Constraint("DistanceX", 0, 3, 2, 2, Q("15.86273 mm")))
pad14 = body13.newObject("PartDesign::Pad", "Pad013")
pad14.Profile = sketch14
pad14.Length = 30
pad14.Reversed = True
body14 = doc.addObject("PartDesign::Body", "Body013")

# Sketch on XY plane
sketch15 = body14.newObject("Sketcher::SketchObject", "Sketch014")
sketch15.AttachmentSupport = (doc.getObject("XY_Plane013"), [""])
sketch15.MapMode = "FlatFace"
sketch15.addGeometry(Part.ArcOfCircle(Part.Circle(App.Vector(164.235006, 147.877864, 0), App.Vector(0, 0, 1), 39), math.radians(42), math.radians(222.000002)), False)
sketch15.addGeometry(Part.ArcOfCircle(Part.Circle(App.Vector(164.235006, 147.877864, 0), App.Vector(0, 0, 1), 39), math.radians(-137.999998), math.radians(42)), False)
sketch15.addGeometry(Part.Circle(App.Vector(164.235006, 147.877864, 0), App.Vector(0, 0, 1), 37.5), False)
sketch15.addConstraint(Sketcher.Constraint("Tangent", 0, 1, 1, 2))
sketch15.addConstraint(Sketcher.Constraint("Coincident", 1, 1, 0, 2))
sketch15.addConstraint(Sketcher.Constraint("Coincident", 2, 3, 0, 3))
sketch15.addConstraint(Sketcher.Constraint("Diameter", 2, Q("75 mm")))
sketch15.addConstraint(Sketcher.Constraint("Radius", 0, Q("39 mm")))
sketch15.addConstraint(Sketcher.Constraint("DistanceX", -1, 1, 1, 1, Q("135.252359 mm")))
sketch15.addConstraint(Sketcher.Constraint("DistanceY", -1, 1, 1, 1, Q("121.781769 mm")))
sketch15.addConstraint(Sketcher.Constraint("DistanceX", 0, 3, 0, 1, Q("28.982648 mm")))
sketch15.addConstraint(Sketcher.Constraint("DistanceY", 1, 1, 0, 1, Q("52.192188 mm")))
pad15 = body14.newObject("PartDesign::Pad", "Pad014")
pad15.Profile = sketch15
pad15.Length = 30
pad15.Reversed = True
body15 = doc.addObject("PartDesign::Body", "Body014")

# Sketch on XY plane
sketch16 = body15.newObject("Sketcher::SketchObject", "Sketch015")
sketch16.AttachmentSupport = (doc.getObject("XY_Plane014"), [""])
sketch16.MapMode = "FlatFace"
sketch16.addGeometry(Part.ArcOfCircle(Part.Circle(App.Vector(210.18349, 68.292756, 0), App.Vector(0, 0, 1), 39), math.radians(17.999997), math.radians(360)), False)
sketch16.addGeometry(Part.ArcOfCircle(Part.Circle(App.Vector(210.18349, 68.292756, 0), App.Vector(0, 0, 1), 39), math.radians(0), math.radians(17.999997)), False)
sketch16.addGeometry(Part.Circle(App.Vector(210.18349, 68.292756, 0), App.Vector(0, 0, 1), 37.5), False)
sketch16.addConstraint(Sketcher.Constraint("Tangent", 0, 1, 1, 2))
sketch16.addConstraint(Sketcher.Constraint("Coincident", 1, 1, 0, 2))
sketch16.addConstraint(Sketcher.Constraint("Coincident", 2, 3, 0, 3))
sketch16.addConstraint(Sketcher.Constraint("Horizontal", 2, 3, 1, 1))
sketch16.addConstraint(Sketcher.Constraint("Diameter", 2, Q("75 mm")))
sketch16.addConstraint(Sketcher.Constraint("Radius", 0, Q("39 mm")))
sketch16.addConstraint(Sketcher.Constraint("DistanceX", -1, 1, 0, 3, Q("210.18349 mm")))
sketch16.addConstraint(Sketcher.Constraint("DistanceY", 0, 3, 0, 1, Q("12.051661 mm")))
sketch16.addConstraint(Sketcher.Constraint("DistanceY", -1, 1, 0, 3, Q("68.292756 mm")))
pad16 = body15.newObject("PartDesign::Pad", "Pad015")
pad16.Profile = sketch16
pad16.Length = 30
pad16.Reversed = True
body16 = doc.addObject("PartDesign::Body", "Body015")

# Sketch on XY plane
sketch17 = body16.newObject("Sketcher::SketchObject", "Sketch016")
sketch17.AttachmentSupport = (doc.getObject("XY_Plane015"), [""])
sketch17.MapMode = "FlatFace"
sketch17.addGeometry(Part.ArcOfCircle(Part.Circle(App.Vector(219.789339, -23.10079, 0), App.Vector(0, 0, 1), 39), math.radians(0), math.radians(174.000001)), False)
sketch17.addGeometry(Part.ArcOfCircle(Part.Circle(App.Vector(219.789339, -23.10079, 0), App.Vector(0, 0, 1), 39), math.radians(174.000001), math.radians(353.999999)), False)
sketch17.addGeometry(Part.ArcOfCircle(Part.Circle(App.Vector(219.789339, -23.10079, 0), App.Vector(0, 0, 1), 39), math.radians(-6.000001), math.radians(0)), False)
sketch17.addGeometry(Part.Circle(App.Vector(219.789339, -23.10079, 0), App.Vector(0, 0, 1), 37.5), False)
sketch17.addConstraint(Sketcher.Constraint("Tangent", 0, 2, 1, 1))
sketch17.addConstraint(Sketcher.Constraint("Tangent", 1, 2, 2, 1))
sketch17.addConstraint(Sketcher.Constraint("Coincident", 2, 2, 0, 1))
sketch17.addConstraint(Sketcher.Constraint("Coincident", 3, 3, 0, 3))
sketch17.addConstraint(Sketcher.Constraint("Equal", 1, 2))
sketch17.addConstraint(Sketcher.Constraint("Horizontal", 3, 3, 2, 2))
sketch17.addConstraint(Sketcher.Constraint("Diameter", 3, Q("75 mm")))
sketch17.addConstraint(Sketcher.Constraint("Radius", 0, Q("39 mm")))
sketch17.addConstraint(Sketcher.Constraint("DistanceY", 1, 2, -1, 1, Q("27.177401 mm")))
sketch17.addConstraint(Sketcher.Constraint("DistanceX", -1, 1, 0, 3, Q("219.789339 mm")))
sketch17.addConstraint(Sketcher.Constraint("DistanceY", 0, 3, -1, 1, Q("23.10079 mm")))
sketch17.addConstraint(Sketcher.Constraint("DistanceY", 0, 2, -1, 1, Q("19.024181 mm")))
pad17 = body16.newObject("PartDesign::Pad", "Pad016")
pad17.Profile = sketch17
pad17.Length = 30
pad17.Reversed = True
body17 = doc.addObject("PartDesign::Body", "Body016")

# Sketch on XY plane
sketch18 = body17.newObject("Sketcher::SketchObject", "Sketch017")
sketch18.AttachmentSupport = (doc.getObject("XY_Plane016"), [""])
sketch18.MapMode = "FlatFace"
sketch18.addGeometry(Part.ArcOfCircle(Part.Circle(App.Vector(191.391614, -110.5, 0), App.Vector(0, 0, 1), 39), math.radians(150.000003), math.radians(329.999999)), False)
sketch18.addGeometry(Part.ArcOfCircle(Part.Circle(App.Vector(191.391614, -110.5, 0), App.Vector(0, 0, 1), 39), math.radians(-30.000001), math.radians(150.000003)), False)
sketch18.addGeometry(Part.Circle(App.Vector(191.391614, -110.5, 0), App.Vector(0, 0, 1), 37.5), False)
sketch18.addConstraint(Sketcher.Constraint("Tangent", 0, 1, 1, 2))
sketch18.addConstraint(Sketcher.Constraint("Coincident", 1, 1, 0, 2))
sketch18.addConstraint(Sketcher.Constraint("Coincident", 2, 3, 0, 3))
sketch18.addConstraint(Sketcher.Constraint("Diameter", 2, Q("75 mm")))
sketch18.addConstraint(Sketcher.Constraint("Radius", 0, Q("39 mm")))
sketch18.addConstraint(Sketcher.Constraint("DistanceY", 0, 1, -1, 1, Q("91.000002 mm")))
sketch18.addConstraint(Sketcher.Constraint("DistanceY", 1, 1, -1, 1, Q("130 mm")))
sketch18.addConstraint(Sketcher.Constraint("DistanceY", 0, 3, -1, 1, Q("110.5 mm")))
sketch18.addConstraint(Sketcher.Constraint("DistanceX", -1, 1, 0, 3, Q("191.391614 mm")))
pad18 = body17.newObject("PartDesign::Pad", "Pad017")
pad18.Profile = sketch18
pad18.Length = 30
pad18.Reversed = True

doc.recompute()
